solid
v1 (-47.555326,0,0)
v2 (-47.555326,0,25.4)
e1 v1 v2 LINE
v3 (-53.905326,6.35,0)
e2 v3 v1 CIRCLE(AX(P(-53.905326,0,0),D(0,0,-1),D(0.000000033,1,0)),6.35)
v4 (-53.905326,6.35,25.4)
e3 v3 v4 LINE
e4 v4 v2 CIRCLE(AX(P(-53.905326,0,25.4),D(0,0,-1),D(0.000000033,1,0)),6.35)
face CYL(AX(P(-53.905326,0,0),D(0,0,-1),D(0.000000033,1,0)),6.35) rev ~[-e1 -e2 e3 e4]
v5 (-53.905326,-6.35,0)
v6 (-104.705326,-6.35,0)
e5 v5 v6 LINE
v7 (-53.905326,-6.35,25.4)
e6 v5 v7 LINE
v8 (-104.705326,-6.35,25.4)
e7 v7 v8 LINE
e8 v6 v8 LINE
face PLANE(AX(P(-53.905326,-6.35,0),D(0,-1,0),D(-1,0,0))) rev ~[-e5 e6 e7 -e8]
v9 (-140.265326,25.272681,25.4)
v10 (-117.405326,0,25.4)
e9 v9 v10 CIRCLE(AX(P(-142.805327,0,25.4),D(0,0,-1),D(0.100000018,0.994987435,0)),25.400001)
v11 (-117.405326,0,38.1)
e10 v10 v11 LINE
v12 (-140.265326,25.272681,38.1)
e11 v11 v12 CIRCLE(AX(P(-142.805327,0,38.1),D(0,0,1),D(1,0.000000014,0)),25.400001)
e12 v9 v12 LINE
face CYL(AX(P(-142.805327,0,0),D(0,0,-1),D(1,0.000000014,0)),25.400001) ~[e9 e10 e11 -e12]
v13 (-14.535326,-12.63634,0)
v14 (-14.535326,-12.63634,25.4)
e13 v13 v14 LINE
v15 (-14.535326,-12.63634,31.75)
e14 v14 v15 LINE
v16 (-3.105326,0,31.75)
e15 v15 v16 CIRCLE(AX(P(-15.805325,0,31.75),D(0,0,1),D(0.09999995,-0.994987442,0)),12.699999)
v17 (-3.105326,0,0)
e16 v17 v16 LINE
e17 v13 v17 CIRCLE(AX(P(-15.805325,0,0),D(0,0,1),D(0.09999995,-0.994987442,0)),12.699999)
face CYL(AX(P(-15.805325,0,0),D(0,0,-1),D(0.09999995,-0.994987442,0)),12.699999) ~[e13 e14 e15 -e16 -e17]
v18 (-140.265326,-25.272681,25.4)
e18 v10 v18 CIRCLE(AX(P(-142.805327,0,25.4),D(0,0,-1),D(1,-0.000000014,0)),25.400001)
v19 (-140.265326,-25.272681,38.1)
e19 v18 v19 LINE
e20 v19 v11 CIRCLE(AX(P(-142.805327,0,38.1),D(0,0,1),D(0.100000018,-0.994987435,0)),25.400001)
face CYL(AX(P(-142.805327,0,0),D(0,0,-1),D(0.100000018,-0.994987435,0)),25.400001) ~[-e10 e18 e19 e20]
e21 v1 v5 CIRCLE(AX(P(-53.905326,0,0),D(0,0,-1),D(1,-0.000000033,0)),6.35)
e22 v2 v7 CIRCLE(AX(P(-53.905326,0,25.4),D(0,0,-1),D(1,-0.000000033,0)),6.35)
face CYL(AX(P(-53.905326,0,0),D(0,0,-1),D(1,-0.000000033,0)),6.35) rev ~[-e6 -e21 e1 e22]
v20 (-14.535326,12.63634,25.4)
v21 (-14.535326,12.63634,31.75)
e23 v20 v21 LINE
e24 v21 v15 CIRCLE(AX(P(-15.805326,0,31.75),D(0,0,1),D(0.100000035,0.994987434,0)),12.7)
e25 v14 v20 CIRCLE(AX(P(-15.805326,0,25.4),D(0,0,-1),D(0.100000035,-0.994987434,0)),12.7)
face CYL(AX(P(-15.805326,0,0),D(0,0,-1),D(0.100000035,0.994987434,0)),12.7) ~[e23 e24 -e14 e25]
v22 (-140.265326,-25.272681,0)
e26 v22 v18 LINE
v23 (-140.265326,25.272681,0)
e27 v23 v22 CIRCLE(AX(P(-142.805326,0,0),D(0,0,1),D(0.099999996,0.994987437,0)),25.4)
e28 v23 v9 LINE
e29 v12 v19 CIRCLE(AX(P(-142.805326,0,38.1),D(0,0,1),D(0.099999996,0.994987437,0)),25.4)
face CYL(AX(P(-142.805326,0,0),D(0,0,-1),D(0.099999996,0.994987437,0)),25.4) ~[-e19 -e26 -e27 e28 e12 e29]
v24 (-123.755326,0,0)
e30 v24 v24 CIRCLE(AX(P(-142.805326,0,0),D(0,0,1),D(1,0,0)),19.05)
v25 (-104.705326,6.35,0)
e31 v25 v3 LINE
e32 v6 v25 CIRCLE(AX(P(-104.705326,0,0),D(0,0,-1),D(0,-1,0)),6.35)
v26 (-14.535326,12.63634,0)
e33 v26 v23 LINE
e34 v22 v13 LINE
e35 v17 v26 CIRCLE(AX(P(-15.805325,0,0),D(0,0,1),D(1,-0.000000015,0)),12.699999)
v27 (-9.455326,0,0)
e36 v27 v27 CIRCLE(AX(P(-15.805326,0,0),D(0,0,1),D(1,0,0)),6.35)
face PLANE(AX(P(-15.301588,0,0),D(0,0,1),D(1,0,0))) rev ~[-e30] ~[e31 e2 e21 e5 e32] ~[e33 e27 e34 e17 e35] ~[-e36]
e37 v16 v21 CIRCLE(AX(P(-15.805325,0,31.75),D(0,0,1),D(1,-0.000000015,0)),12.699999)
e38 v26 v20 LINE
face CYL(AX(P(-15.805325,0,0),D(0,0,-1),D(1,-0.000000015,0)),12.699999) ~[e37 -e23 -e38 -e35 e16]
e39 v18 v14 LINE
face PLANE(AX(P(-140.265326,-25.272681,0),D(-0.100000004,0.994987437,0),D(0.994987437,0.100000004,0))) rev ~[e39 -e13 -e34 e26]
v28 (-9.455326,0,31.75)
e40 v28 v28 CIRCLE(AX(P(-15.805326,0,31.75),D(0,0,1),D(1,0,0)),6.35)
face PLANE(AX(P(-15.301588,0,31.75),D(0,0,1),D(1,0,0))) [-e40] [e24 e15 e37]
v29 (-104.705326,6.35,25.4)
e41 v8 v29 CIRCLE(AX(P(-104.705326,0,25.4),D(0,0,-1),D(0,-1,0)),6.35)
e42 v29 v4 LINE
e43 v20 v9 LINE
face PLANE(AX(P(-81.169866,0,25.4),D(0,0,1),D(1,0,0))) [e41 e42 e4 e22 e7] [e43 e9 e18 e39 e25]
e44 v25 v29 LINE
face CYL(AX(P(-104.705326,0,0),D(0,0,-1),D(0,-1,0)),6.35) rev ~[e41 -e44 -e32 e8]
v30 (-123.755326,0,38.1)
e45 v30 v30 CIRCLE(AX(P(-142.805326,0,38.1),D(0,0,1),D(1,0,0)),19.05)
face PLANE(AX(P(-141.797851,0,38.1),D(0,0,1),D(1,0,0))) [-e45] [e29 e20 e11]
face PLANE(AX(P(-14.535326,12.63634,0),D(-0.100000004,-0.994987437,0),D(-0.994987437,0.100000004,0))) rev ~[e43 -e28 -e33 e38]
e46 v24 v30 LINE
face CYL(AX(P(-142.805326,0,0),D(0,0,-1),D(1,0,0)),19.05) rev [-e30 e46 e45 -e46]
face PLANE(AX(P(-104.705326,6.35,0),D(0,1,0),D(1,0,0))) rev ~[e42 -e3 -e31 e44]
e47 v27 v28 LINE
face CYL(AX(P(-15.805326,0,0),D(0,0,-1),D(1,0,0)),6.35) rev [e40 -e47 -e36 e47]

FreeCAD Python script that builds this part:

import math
import FreeCAD as App
import Part
import Sketcher
from FreeCAD import Vector
Q = App.Units.Quantity

doc = App.newDocument("Part")
body = doc.addObject("PartDesign::Body", "Body")

# Sketch on XY plane
sketch1 = body.newObject("Sketcher::SketchObject", "Sketch")
sketch1.AttachmentSupport = (doc.getObject("XY_Plane"), [""])
sketch1.MapMode = "FlatFace"
sketch1.addGeometry([
    Part.ArcOfCircle(Part.Circle(Vector(-143, 0, 0), Vector(0, 0, 1), 25), math.radians(-84), math.radians(0)),
    Part.ArcOfCircle(Part.Circle(Vector(-143, 0, 0), Vector(0, 0, 1), 25), math.radians(0), math.radians(84)),
    Part.ArcOfCircle(Part.Circle(Vector(-143, 0, 0), Vector(0, 0, 1), 25), math.radians(84), math.radians(276)),
    Part.Circle(Vector(-143, 0, 0), Vector(0, 0, 1), 19),
], False)
sketch1.addConstraint([
    Sketcher.Constraint("Tangent", 0, 2, 1, 1),
    Sketcher.Constraint("Tangent", 1, 2, 2, 1),
    Sketcher.Constraint("Tangent", 2, 2, 0, 1),
    Sketcher.Constraint("Coincident", 3, 3, 0, 3),
    Sketcher.Constraint("Symmetric", 1, 2, 2, 2, -1),
    Sketcher.Constraint("PointOnObject", 0, 2, -1),
    Sketcher.Constraint("Radius", 0, Q("1 in")),
    Sketcher.Constraint("Diameter", 3, Q("1.5 in")),
    Sketcher.Constraint("DistanceX", 0, 3, 1, 2, Q("0.1 in")),
    Sketcher.Constraint("DistanceX", 0, 3, -1, 1, 142.805327),
])
pad1 = body.newObject("PartDesign::Pad", "Pad")
pad1.Profile = sketch1
pad1.Length = Q("1.5 in")

# Sketch on XY plane
sketch2 = body.newObject("Sketcher::SketchObject", "Sketch001")
sketch2.AttachmentSupport = (doc.getObject("XY_Plane"), [""])
sketch2.MapMode = "FlatFace"
sketch2.addGeometry([
    Part.ArcOfCircle(Part.Circle(Vector(-143, 0, 0), Vector(0, 0, 1), 25), math.radians(0), math.radians(84)),  # 0
    Part.ArcOfCircle(Part.Circle(Vector(-143, 0, 0), Vector(0, 0, 1), 25), math.radians(-84), math.radians(0)),  # 1
    Part.LineSegment(Vector(-140, -25, 0), Vector(-15, -13, 0)),  # 2
    Part.ArcOfCircle(Part.Circle(Vector(-16, 0, 0), Vector(0, 0, 1), 13), math.radians(84), math.radians(276)),  # 3
    Part.LineSegment(Vector(-15, 13, 0), Vector(-140, 25, 0)),  # 4
    Part.LineSegment(Vector(-54, -6, 0), Vector(-105, -6, 0)),  # 5
    Part.ArcOfCircle(Part.Circle(Vector(-105, 0, 0), Vector(0, 0, 1), 6), math.radians(90), math.radians(270)),  # 6
    Part.LineSegment(Vector(-105, 6, 0), Vector(-54, 6, 0)),  # 7
    Part.ArcOfCircle(Part.Circle(Vector(-54, 0, 0), Vector(0, 0, 1), 6), math.radians(0), math.radians(90)),  # 8
    Part.ArcOfCircle(Part.Circle(Vector(-54, 0, 0), Vector(0, 0, 1), 6), math.radians(-90), math.radians(0)),  # 9
], False)
sketch2.addConstraint([
    Sketcher.Constraint("Tangent", 0, 1, 1, 2),
    Sketcher.Constraint("Tangent", 1, 1, 2, 1),
    Sketcher.Constraint("Tangent", 2, 2, 3, 2),
    Sketcher.Constraint("Tangent", 3, 1, 4, 1),
    Sketcher.Constraint("Tangent", 4, 2, 0, 2),
    Sketcher.Constraint("Tangent", 5, 2, 6, 2),
    Sketcher.Constraint("Tangent", 6, 1, 7, 1),
    Sketcher.Constraint("Tangent", 7, 2, 8, 2),
    Sketcher.Constraint("Tangent", 8, 1, 9, 2),
    Sketcher.Constraint("Tangent", 9, 1, 5, 1),
    Sketcher.Constraint("Horizontal", 5),
    Sketcher.Constraint("Horizontal", 7),
    Sketcher.Constraint("Equal", 0, 1),
    Sketcher.Constraint("Equal", 6, 8),
    Sketcher.Constraint("Symmetric", 2, 2, 3, 1, -1),
    Sketcher.Constraint("PointOnObject", 6, 3, -1),
    Sketcher.Constraint("PointOnObject", 0, 1, -1),
    Sketcher.Constraint("PointOnObject", 8, 1, -1),
    Sketcher.Constraint("Radius", 0, Q("1 in")),
    Sketcher.Constraint("Radius", 3, Q("0.5 in")),
    Sketcher.Constraint("DistanceX", 5, 2, 5, 1, Q("2 in")),
    Sketcher.Constraint("Radius", 6, Q("0.25 in")),
    Sketcher.Constraint("DistanceX", 0, 3, 3, 3, Q("5 in")),
    Sketcher.Constraint("DistanceX", 0, 3, 6, 3, Q("1.5 in")),
    Sketcher.Constraint("DistanceX", 0, 3, -1, 1, 142.805327),
])
pad2 = body.newObject("PartDesign::Pad", "Pad001")
pad2.Profile = sketch2
pad2.Length = Q("1 in")

# Sketch on XY plane
sketch3 = body.newObject("Sketcher::SketchObject", "Sketch002")
sketch3.AttachmentSupport = (doc.getObject("XY_Plane"), [""])
sketch3.MapMode = "FlatFace"
sketch3.addGeometry([
    Part.ArcOfCircle(Part.Circle(Vector(-16, 0, 0), Vector(0, 0, 1), 13), math.radians(0), math.radians(84)),
    Part.ArcOfCircle(Part.Circle(Vector(-16, 0, 0), Vector(0, 0, 1), 13), math.radians(84), math.radians(276)),
    Part.ArcOfCircle(Part.Circle(Vector(-16, 0, 0), Vector(0, 0, 1), 13), math.radians(-84), math.radians(0)),
    Part.Circle(Vector(-16, 0, 0), Vector(0, 0, 1), 6),
], False)
sketch3.addConstraint([
    Sketcher.Constraint("Tangent", 0, 2, 1, 1),
    Sketcher.Constraint("Tangent", 1, 2, 2, 1),
    Sketcher.Constraint("Tangent", 2, 2, 0, 1),
    Sketcher.Constraint("Coincident", 3, 3, 0, 3),
    Sketcher.Constraint("Symmetric", 0, 2, 1, 2, -1),
    Sketcher.Constraint("PointOnObject", 2, 2, -1),
    Sketcher.Constraint("Diameter", 3, Q("0.5 in")),
    Sketcher.Constraint("Radius", 0, Q("0.5 in")),
    Sketcher.Constraint("DistanceX", 0, 3, 0, 2, Q("0.05 in")),
    Sketcher.Constraint("DistanceX", 0, 3, -1, 1, 15.805325),
])
pad3 = body.newObject("PartDesign::Pad", "Pad002")
pad3.Profile = sketch3
pad3.Length = Q("1.25 in")

doc.recompute()
